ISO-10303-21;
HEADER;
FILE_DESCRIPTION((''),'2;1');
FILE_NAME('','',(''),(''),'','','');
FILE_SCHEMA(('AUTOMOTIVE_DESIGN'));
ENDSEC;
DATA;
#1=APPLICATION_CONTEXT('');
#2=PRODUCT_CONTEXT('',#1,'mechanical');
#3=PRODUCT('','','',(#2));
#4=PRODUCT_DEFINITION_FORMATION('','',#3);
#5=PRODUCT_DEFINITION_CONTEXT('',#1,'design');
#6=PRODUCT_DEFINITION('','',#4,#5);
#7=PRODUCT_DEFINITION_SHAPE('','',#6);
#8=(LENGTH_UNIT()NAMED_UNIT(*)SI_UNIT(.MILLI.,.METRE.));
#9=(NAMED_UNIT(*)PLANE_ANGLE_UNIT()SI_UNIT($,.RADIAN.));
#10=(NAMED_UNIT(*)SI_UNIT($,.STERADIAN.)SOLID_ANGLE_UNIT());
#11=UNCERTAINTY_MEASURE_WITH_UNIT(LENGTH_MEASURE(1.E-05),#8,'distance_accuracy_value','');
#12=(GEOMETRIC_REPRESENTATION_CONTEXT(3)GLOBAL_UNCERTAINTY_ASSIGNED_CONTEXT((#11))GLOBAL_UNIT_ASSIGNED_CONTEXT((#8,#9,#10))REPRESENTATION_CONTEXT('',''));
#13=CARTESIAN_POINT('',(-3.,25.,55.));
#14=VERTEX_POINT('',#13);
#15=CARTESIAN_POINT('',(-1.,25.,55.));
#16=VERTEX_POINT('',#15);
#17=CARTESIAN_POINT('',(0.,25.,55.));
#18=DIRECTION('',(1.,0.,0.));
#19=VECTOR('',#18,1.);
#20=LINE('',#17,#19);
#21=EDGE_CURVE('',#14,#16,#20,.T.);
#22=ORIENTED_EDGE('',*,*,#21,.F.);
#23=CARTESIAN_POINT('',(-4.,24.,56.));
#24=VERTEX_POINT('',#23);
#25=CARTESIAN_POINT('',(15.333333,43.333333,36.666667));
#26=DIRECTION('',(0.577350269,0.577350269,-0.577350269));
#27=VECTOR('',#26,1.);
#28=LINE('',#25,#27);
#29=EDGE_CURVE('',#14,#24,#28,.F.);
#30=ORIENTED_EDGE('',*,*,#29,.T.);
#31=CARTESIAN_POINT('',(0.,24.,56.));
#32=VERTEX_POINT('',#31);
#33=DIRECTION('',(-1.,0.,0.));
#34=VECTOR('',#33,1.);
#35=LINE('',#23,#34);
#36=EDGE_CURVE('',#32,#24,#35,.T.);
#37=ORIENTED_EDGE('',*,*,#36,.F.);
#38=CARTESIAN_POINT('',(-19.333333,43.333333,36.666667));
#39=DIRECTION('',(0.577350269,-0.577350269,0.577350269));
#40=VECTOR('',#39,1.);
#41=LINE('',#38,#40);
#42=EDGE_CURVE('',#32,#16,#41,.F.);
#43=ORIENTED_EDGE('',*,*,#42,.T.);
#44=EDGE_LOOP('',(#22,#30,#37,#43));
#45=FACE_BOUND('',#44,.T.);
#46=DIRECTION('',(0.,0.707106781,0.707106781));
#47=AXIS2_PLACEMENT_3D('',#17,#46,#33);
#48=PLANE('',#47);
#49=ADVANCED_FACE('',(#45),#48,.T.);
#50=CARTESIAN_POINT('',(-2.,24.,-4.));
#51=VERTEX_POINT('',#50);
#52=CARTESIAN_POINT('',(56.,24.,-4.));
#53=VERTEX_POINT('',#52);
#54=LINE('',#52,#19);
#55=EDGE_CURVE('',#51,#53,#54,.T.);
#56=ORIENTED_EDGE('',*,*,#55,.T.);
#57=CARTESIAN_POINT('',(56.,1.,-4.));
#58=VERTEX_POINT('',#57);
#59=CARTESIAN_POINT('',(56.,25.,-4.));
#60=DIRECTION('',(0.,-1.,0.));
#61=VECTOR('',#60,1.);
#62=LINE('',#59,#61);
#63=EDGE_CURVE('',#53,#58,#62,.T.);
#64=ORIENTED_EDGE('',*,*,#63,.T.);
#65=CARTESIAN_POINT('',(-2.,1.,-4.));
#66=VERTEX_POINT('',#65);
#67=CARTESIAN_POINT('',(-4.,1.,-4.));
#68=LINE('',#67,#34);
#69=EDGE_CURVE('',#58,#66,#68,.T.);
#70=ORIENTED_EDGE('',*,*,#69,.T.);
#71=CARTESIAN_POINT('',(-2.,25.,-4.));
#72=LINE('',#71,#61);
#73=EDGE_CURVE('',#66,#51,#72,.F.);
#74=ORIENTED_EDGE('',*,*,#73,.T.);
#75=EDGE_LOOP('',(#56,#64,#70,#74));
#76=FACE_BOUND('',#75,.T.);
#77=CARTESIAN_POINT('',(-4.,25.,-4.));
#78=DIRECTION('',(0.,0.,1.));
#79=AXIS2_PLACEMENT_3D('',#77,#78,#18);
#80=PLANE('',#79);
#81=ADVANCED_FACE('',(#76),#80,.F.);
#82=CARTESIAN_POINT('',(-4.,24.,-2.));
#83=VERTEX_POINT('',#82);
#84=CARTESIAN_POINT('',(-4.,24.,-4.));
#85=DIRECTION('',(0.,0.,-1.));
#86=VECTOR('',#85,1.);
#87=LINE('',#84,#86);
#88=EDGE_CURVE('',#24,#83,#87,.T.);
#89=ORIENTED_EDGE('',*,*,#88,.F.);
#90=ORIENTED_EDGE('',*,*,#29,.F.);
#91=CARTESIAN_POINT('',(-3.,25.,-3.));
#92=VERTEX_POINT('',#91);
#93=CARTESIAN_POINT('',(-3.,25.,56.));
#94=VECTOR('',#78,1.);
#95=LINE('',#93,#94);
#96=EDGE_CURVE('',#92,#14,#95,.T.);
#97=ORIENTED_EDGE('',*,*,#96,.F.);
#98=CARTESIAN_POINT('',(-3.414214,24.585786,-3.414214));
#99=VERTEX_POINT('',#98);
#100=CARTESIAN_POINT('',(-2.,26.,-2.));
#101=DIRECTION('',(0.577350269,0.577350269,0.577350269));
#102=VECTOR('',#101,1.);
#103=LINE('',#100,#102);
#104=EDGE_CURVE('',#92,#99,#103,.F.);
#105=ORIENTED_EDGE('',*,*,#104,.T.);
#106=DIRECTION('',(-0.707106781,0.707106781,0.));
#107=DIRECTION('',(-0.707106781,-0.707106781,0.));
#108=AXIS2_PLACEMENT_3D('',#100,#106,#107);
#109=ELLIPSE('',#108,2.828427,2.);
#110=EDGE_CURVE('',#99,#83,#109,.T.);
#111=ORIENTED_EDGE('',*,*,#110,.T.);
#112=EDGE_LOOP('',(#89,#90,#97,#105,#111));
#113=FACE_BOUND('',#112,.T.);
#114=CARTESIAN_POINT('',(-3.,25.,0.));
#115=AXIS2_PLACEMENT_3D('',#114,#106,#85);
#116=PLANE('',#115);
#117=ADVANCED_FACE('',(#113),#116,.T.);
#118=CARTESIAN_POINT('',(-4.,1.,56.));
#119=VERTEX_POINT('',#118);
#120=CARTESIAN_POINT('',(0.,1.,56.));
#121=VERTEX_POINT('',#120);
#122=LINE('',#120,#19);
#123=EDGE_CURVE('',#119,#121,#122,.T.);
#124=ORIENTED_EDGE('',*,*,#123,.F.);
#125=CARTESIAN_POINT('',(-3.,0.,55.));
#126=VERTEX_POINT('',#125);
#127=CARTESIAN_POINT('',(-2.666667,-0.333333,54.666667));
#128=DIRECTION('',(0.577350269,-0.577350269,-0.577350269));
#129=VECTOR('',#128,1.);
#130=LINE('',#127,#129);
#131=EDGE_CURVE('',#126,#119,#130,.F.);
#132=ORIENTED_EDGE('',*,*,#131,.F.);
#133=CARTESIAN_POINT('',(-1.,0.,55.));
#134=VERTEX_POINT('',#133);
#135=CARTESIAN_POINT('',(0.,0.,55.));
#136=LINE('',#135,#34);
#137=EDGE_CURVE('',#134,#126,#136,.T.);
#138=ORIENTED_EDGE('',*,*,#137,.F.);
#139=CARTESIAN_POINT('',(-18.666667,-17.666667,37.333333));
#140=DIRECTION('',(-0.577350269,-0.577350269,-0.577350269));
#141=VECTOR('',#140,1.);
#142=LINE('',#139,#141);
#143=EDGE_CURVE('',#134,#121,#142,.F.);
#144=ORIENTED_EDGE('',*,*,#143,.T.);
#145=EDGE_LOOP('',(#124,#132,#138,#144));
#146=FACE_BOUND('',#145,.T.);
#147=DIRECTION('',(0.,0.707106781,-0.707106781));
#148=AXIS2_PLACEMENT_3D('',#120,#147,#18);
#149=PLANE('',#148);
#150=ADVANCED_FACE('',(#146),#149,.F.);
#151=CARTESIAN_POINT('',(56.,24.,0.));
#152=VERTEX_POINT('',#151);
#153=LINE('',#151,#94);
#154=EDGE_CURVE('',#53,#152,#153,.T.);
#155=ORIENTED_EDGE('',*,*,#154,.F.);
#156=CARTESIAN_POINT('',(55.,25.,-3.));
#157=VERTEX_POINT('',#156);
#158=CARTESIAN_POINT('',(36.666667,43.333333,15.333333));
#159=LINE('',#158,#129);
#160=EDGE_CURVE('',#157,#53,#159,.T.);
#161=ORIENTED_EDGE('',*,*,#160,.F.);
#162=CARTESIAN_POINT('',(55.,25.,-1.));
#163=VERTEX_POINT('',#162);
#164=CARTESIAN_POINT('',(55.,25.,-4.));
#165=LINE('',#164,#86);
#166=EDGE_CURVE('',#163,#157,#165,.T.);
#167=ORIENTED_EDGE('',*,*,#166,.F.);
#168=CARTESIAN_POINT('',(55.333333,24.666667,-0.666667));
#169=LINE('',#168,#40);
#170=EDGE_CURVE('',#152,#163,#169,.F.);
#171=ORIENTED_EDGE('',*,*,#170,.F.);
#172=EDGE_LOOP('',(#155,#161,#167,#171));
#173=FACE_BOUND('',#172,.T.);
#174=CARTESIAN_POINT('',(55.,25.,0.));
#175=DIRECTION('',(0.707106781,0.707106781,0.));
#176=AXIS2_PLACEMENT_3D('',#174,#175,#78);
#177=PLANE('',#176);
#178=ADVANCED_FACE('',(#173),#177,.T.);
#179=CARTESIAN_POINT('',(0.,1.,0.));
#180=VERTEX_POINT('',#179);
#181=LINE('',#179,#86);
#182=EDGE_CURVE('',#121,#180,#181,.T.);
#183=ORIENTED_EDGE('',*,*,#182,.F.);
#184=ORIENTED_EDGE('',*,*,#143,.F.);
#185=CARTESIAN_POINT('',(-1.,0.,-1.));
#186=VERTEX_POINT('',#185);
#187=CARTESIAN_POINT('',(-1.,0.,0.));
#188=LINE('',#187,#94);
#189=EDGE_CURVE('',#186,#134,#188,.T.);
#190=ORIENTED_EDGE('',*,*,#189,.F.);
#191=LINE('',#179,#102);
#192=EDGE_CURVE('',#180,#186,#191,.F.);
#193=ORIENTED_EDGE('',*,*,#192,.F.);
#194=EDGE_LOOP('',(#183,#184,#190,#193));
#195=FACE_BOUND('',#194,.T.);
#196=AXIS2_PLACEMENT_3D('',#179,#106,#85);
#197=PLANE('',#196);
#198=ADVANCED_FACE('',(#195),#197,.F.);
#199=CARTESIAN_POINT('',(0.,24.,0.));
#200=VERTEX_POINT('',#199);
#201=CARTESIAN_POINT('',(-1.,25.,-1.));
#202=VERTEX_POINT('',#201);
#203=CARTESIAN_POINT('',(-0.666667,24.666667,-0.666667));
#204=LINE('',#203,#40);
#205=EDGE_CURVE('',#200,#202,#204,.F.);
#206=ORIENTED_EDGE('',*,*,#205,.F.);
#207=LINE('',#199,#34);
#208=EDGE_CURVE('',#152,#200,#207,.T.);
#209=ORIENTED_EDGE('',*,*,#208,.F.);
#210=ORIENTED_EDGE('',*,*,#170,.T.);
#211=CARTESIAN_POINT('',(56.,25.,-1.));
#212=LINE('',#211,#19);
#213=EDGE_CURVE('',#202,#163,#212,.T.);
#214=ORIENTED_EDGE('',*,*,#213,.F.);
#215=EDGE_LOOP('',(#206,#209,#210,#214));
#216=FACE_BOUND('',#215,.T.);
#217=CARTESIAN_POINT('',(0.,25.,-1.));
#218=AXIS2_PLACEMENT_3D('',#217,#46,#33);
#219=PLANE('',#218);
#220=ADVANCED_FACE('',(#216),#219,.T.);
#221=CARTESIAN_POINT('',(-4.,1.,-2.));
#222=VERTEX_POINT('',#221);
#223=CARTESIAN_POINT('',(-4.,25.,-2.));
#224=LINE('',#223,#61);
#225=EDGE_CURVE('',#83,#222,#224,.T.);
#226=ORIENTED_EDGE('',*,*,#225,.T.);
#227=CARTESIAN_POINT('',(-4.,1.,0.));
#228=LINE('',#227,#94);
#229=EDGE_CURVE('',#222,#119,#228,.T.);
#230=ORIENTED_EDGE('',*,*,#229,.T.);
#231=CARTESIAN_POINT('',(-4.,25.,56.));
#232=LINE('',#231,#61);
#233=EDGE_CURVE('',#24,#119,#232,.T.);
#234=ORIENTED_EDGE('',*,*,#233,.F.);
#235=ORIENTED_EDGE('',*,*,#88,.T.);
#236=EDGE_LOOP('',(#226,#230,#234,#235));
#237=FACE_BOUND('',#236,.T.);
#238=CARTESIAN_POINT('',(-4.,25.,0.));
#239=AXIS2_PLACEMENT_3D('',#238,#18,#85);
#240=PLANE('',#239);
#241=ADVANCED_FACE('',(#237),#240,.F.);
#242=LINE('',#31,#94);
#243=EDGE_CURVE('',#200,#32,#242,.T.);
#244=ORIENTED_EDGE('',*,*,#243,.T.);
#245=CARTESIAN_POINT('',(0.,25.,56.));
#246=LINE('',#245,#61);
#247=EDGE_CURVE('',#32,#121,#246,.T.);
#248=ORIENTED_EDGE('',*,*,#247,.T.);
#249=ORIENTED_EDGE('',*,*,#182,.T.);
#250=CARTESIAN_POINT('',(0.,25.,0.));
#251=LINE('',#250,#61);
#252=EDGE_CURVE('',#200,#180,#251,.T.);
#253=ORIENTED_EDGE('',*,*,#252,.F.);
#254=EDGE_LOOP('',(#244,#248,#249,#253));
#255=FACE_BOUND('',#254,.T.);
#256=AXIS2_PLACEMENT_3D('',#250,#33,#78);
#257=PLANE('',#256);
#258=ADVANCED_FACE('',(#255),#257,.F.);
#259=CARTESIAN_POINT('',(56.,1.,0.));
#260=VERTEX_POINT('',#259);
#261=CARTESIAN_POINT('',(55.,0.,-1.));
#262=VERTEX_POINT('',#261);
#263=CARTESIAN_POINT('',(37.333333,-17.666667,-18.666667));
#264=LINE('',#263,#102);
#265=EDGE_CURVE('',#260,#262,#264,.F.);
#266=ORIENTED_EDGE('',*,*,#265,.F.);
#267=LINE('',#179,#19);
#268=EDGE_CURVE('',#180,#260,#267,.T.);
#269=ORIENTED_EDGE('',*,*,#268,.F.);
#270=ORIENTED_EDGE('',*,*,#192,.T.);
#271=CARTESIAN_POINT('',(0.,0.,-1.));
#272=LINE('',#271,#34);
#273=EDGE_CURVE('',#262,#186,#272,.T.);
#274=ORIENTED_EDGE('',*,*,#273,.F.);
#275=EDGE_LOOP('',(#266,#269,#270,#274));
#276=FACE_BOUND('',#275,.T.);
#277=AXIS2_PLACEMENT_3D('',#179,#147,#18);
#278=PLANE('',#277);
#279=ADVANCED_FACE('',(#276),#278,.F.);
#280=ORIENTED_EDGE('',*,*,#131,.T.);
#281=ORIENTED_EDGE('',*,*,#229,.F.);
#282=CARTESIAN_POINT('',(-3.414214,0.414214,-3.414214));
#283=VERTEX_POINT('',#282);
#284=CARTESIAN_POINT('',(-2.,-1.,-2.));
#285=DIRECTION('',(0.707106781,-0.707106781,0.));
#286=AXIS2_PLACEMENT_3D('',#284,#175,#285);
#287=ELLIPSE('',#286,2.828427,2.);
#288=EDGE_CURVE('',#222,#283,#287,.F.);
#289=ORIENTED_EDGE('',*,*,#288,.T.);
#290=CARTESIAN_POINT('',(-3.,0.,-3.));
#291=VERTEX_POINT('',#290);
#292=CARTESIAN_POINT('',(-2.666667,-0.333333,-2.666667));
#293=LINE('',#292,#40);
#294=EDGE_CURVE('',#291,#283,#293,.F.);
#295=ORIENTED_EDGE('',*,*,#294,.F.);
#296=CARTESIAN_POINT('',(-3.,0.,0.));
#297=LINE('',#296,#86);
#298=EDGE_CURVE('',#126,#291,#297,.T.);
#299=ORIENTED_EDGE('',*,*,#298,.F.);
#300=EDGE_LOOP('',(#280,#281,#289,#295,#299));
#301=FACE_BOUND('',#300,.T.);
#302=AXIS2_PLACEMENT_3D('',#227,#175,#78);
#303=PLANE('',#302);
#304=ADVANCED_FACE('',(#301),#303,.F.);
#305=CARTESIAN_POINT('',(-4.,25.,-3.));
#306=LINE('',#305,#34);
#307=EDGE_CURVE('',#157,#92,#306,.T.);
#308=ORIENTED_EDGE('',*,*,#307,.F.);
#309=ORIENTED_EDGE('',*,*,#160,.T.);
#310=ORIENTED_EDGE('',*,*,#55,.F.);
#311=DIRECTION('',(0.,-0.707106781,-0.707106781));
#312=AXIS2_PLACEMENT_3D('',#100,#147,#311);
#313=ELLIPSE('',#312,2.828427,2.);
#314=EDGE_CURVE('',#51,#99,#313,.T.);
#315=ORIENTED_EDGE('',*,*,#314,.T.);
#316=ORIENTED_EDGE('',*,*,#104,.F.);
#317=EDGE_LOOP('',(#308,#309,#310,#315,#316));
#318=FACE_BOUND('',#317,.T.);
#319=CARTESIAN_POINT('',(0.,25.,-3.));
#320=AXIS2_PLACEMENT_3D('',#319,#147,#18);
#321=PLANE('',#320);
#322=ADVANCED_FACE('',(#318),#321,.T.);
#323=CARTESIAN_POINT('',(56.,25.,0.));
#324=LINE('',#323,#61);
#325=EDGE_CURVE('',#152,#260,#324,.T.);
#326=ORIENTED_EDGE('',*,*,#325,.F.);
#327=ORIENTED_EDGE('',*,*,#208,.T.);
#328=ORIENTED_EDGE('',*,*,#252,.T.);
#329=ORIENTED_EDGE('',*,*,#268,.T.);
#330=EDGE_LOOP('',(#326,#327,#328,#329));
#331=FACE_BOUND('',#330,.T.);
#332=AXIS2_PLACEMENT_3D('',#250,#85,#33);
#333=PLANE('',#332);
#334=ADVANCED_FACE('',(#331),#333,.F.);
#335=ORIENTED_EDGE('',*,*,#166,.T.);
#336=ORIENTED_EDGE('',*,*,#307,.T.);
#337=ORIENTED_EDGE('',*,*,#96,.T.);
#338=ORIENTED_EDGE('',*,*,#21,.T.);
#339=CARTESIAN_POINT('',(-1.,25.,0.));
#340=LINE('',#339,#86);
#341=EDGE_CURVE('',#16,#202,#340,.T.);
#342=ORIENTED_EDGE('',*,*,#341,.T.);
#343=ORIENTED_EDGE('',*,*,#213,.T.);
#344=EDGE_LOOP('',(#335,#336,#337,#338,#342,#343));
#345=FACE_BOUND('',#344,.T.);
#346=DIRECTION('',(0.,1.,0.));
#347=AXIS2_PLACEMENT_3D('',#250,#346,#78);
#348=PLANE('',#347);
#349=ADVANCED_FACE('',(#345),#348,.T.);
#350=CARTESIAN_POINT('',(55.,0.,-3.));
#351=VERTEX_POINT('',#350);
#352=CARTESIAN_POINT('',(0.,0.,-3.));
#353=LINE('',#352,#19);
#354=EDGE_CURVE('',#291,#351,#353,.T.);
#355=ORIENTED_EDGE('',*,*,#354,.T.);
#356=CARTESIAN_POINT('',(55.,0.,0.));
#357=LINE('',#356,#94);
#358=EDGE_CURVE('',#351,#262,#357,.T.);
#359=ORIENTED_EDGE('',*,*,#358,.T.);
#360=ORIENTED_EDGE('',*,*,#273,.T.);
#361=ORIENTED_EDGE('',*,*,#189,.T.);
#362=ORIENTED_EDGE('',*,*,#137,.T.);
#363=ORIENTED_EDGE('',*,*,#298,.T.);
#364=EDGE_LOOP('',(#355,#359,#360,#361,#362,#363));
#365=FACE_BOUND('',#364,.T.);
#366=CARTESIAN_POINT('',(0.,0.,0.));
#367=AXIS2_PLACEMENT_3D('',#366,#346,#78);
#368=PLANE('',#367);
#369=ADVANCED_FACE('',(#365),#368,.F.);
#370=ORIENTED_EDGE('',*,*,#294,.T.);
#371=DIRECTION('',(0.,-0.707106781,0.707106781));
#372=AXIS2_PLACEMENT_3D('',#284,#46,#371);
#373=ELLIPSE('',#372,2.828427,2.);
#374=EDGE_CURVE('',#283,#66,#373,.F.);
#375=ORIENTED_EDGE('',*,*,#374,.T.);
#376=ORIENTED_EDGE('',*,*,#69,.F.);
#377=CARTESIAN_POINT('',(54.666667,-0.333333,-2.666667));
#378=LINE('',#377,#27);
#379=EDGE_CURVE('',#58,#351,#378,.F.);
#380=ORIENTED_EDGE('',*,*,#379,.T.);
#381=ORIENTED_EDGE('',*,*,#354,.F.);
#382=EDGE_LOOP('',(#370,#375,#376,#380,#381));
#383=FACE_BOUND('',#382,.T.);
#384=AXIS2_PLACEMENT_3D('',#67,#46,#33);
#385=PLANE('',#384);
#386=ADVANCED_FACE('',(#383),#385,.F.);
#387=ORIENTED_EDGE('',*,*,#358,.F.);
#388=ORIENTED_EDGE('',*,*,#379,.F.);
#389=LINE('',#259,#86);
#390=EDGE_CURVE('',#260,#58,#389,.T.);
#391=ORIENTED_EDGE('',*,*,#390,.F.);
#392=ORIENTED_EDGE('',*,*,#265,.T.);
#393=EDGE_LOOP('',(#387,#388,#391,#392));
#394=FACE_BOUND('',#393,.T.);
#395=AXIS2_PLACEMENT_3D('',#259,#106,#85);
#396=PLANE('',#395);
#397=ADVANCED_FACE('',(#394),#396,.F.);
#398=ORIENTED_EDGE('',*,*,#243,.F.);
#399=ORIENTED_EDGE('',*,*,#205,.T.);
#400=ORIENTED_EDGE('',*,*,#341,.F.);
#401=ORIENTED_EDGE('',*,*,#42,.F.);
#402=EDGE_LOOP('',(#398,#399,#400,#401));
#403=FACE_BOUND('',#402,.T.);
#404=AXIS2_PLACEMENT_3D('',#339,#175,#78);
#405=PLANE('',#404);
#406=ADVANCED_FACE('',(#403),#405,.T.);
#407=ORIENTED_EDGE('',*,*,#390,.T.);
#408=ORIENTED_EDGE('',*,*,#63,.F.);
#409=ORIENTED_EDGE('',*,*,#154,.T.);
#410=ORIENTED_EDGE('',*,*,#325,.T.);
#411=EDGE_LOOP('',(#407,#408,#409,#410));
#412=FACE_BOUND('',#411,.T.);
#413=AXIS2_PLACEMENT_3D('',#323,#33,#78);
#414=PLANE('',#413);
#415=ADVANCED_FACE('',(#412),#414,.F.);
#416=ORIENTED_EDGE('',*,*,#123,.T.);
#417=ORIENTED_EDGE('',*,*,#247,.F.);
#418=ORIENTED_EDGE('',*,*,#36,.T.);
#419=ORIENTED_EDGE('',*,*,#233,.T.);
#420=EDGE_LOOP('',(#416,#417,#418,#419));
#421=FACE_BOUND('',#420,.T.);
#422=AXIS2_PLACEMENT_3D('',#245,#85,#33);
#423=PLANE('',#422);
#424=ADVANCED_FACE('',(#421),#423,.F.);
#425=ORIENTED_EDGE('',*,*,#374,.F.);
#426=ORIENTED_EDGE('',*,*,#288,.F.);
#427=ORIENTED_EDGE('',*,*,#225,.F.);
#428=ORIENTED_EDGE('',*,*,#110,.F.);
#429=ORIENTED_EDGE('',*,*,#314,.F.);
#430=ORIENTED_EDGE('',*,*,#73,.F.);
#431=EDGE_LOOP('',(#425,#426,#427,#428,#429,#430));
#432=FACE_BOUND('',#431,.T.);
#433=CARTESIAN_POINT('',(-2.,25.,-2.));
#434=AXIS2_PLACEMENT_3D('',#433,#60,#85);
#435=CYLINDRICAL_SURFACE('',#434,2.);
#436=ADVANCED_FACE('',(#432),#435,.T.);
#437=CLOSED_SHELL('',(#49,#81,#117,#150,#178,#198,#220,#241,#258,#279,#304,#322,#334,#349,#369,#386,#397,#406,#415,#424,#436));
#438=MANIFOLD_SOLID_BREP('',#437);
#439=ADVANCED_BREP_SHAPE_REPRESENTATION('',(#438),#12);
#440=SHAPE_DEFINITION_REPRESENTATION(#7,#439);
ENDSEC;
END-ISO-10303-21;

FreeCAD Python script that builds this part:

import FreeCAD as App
import Part
import Sketcher

V = App.Vector


def edges_at(feature, points):
    """Names of the edges that pass closest to the given points."""
    edges = feature.Shape.Edges
    near = lambda p: min(range(len(edges)), key=lambda i: edges[i].distToShape(Part.Vertex(*p))[0])
    return sorted({f"Edge{near(p) + 1}" for p in points})

doc = App.newDocument("Part")
body = doc.addObject("PartDesign::Body", "Body")

sketch1 = body.newObject("Sketcher::SketchObject", "Sketch")
sketch1.AttachmentSupport = (doc.getObject("XZ_Plane"), [""])
sketch1.MapMode = "FlatFace"
sketch1.addGeometry([
    Part.LineSegment(V(0, 56, 0), V(0, 0, 0)),
    Part.LineSegment(V(0, 0, 0), V(56, 0, 0)),
    Part.LineSegment(V(56, 0, 0), V(56, -4, 0)),
    Part.LineSegment(V(56, -4, 0), V(-4, -4, 0)),
    Part.LineSegment(V(-4, -4, 0), V(-4, 56, 0)),
    Part.LineSegment(V(-4, 56, 0), V(0, 56, 0)),
], False)
sketch1.addConstraint([
    Sketcher.Constraint("Coincident", 0, 2, 1, 1),
    Sketcher.Constraint("Coincident", 1, 2, 2, 1),
    Sketcher.Constraint("Coincident", 2, 2, 3, 1),
    Sketcher.Constraint("Coincident", 3, 2, 4, 1),
    Sketcher.Constraint("Coincident", 4, 2, 5, 1),
    Sketcher.Constraint("Coincident", 5, 2, 0, 1),
    Sketcher.Constraint("Vertical", 0),
    Sketcher.Constraint("Horizontal", 1),
    Sketcher.Constraint("Vertical", 2),
    Sketcher.Constraint("Horizontal", 3),
    Sketcher.Constraint("Vertical", 4),
    Sketcher.Constraint("Horizontal", 5),
    Sketcher.Constraint("Coincident", 0, 2, -1, 1),
    Sketcher.Constraint("Equal", 1, 0),
    Sketcher.Constraint("Equal", 5, 2),
    Sketcher.Constraint("DistanceX", 1, 1, 1, 2, 56.0),
    Sketcher.Constraint("DistanceX", 3, 2, 3, 1, 60.0),
])
pad1 = body.newObject("PartDesign::Pad", "Pad")
pad1.Profile = sketch1
pad1.Length = 25
pad1.Reversed = True
doc.recompute()

chamfer = body.newObject("PartDesign::Chamfer", "Chamfer")
chamfer.Base = (pad1, edges_at(pad1, [
    (28, 0, 0),
    (26, 25, -4),
    (-4, 25, 26),
    (-2, 25, 56),
    (0, 25, 28),
    (28, 25, 0),
    (0, 0, 28),
    (-2, 0, 56),
    (-4, 0, 26),
    (56, 25, -2),
    (26, 0, -4),
    (56, 0, -2),
]))
chamfer.Size = 1
doc.recompute()

fillet = body.newObject("PartDesign::Fillet", "Fillet")
fillet.Base = (chamfer, edges_at(chamfer, [(-4, 12.5, -4)]))
fillet.Radius = 2

doc.recompute()
